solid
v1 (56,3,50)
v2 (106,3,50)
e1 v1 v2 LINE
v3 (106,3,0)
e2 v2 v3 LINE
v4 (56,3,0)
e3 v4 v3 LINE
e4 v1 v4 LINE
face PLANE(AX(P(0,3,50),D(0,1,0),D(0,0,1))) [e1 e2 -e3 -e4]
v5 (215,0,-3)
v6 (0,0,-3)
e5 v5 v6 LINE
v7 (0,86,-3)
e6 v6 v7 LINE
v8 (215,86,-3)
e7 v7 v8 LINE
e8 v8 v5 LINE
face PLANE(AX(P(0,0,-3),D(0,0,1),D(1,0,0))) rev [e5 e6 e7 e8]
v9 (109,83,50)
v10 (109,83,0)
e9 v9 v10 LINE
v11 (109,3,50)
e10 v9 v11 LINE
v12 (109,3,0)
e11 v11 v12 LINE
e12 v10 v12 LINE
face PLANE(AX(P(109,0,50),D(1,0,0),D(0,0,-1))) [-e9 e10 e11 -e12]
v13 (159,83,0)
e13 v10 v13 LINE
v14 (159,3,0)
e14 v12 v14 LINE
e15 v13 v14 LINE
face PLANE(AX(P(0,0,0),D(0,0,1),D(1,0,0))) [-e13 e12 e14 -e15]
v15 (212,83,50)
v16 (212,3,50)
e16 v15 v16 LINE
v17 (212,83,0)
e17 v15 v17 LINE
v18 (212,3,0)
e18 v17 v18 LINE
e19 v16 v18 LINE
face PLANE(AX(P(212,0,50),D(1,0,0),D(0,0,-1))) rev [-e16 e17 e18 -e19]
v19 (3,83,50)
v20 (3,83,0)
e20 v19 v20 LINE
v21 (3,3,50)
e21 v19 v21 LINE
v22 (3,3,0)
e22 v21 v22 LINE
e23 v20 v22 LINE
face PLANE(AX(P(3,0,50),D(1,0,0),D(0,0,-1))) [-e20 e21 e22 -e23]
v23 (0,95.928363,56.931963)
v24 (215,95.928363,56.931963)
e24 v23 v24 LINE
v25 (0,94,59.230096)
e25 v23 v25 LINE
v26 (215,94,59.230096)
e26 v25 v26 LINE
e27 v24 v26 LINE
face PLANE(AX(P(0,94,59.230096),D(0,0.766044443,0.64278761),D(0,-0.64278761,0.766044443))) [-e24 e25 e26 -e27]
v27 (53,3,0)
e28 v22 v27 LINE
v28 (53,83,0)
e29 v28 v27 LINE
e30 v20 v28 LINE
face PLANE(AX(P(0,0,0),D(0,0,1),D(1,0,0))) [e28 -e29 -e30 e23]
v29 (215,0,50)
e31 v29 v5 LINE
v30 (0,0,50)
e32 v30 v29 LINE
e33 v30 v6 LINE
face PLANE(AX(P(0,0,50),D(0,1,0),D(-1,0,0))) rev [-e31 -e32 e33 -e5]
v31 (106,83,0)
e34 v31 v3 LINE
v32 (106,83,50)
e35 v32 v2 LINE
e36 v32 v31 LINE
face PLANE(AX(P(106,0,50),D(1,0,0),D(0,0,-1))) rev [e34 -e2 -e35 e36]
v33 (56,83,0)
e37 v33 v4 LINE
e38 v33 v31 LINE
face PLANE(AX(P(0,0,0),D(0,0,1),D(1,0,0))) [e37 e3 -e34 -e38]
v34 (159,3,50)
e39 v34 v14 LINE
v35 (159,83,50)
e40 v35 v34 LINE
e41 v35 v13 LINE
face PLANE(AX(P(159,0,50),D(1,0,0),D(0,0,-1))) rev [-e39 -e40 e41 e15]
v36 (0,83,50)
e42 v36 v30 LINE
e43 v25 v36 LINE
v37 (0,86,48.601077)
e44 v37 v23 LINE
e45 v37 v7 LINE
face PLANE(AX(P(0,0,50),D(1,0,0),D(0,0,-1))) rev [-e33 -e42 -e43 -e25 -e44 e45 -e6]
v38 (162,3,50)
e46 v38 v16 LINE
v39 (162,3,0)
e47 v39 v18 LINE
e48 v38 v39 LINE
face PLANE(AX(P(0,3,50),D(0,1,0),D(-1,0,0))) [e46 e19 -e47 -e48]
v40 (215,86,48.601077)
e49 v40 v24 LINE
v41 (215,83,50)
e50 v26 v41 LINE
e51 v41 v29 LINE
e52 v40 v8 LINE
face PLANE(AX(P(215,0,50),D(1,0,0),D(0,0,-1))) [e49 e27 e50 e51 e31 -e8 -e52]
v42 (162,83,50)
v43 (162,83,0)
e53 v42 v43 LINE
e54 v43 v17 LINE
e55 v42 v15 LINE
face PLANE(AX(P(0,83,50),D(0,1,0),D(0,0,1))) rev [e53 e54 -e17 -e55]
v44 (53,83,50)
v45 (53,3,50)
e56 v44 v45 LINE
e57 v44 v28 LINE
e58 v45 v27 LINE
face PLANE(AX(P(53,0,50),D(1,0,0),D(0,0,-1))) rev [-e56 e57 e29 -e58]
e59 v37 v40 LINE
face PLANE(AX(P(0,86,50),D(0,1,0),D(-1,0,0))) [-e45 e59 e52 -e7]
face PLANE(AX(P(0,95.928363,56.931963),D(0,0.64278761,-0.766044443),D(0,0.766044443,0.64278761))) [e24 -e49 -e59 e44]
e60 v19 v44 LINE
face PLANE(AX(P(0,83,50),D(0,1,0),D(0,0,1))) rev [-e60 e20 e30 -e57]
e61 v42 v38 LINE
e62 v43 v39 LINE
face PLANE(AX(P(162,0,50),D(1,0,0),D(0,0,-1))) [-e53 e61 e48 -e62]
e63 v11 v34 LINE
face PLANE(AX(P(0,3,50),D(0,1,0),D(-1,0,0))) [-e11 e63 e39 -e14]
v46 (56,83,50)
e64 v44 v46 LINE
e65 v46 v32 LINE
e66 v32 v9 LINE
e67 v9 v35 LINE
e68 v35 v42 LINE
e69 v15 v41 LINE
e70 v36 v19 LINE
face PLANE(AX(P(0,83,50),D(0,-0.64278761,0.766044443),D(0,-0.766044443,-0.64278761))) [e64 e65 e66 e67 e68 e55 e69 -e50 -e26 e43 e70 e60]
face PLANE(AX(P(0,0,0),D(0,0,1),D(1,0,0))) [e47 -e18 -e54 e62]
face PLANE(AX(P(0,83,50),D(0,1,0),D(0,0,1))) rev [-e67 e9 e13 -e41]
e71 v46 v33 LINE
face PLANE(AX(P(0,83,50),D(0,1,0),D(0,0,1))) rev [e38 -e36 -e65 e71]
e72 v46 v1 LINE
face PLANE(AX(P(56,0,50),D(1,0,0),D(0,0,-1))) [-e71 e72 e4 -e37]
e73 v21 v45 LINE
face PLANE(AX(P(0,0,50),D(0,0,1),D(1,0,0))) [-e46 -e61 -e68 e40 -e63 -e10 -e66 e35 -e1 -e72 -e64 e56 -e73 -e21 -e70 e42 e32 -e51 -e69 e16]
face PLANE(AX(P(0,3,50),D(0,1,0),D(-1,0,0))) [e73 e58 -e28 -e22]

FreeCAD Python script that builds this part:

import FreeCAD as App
import Part
import Sketcher
from FreeCAD import Vector
Q = App.Units.Quantity

doc = App.newDocument("Part")
body = doc.addObject("PartDesign::Body", "Body")

# Sketch on XY plane
sketch1 = body.newObject("Sketcher::SketchObject", "Sketch")
sketch1.AttachmentSupport = (doc.getObject("XY_Plane"), [""])
sketch1.MapMode = "FlatFace"
sketch1.addGeometry(Part.LineSegment(Vector(0, 86, 0), Vector(0, 0, 0)), False)
sketch1.addGeometry(Part.LineSegment(Vector(0, 0, 0), Vector(215, 0, 0)), False)
sketch1.addGeometry(Part.LineSegment(Vector(215, 0, 0), Vector(215, 86, 0)), False)
sketch1.addGeometry(Part.LineSegment(Vector(215, 86, 0), Vector(0, 86, 0)), False)
sketch1.addGeometry(Part.LineSegment(Vector(56, 3, 0), Vector(56, 83, 0)), False)
sketch1.addGeometry(Part.LineSegment(Vector(56, 83, 0), Vector(106, 83, 0)), False)
sketch1.addGeometry(Part.LineSegment(Vector(106, 83, 0), Vector(106, 3, 0)), False)
sketch1.addGeometry(Part.LineSegment(Vector(106, 3, 0), Vector(56, 3, 0)), False)
sketch1.addGeometry(Part.LineSegment(Vector(53, 3, 0), Vector(3, 3, 0)), False)
sketch1.addGeometry(Part.LineSegment(Vector(3, 3, 0), Vector(3, 83, 0)), False)
sketch1.addGeometry(Part.LineSegment(Vector(3, 83, 0), Vector(53, 83, 0)), False)
sketch1.addGeometry(Part.LineSegment(Vector(53, 83, 0), Vector(53, 3, 0)), False)
sketch1.addGeometry(Part.LineSegment(Vector(162, 83, 0), Vector(212, 83, 0)), False)
sketch1.addGeometry(Part.LineSegment(Vector(212, 83, 0), Vector(212, 3, 0)), False)
sketch1.addGeometry(Part.LineSegment(Vector(212, 3, 0), Vector(162, 3, 0)), False)
sketch1.addGeometry(Part.LineSegment(Vector(162, 3, 0), Vector(162, 83, 0)), False)
sketch1.addGeometry(Part.LineSegment(Vector(159, 3, 0), Vector(109, 3, 0)), False)
sketch1.addGeometry(Part.LineSegment(Vector(109, 3, 0), Vector(109, 83, 0)), False)
sketch1.addGeometry(Part.LineSegment(Vector(109, 83, 0), Vector(159, 83, 0)), False)
sketch1.addGeometry(Part.LineSegment(Vector(159, 83, 0), Vector(159, 3, 0)), False)
sketch1.addConstraint(Sketcher.Constraint("Coincident", 0, 2, 1, 1))
sketch1.addConstraint(Sketcher.Constraint("Coincident", 1, 2, 2, 1))
sketch1.addConstraint(Sketcher.Constraint("Coincident", 2, 2, 3, 1))
sketch1.addConstraint(Sketcher.Constraint("Coincident", 3, 2, 0, 1))
sketch1.addConstraint(Sketcher.Constraint("Coincident", 4, 2, 5, 1))
sketch1.addConstraint(Sketcher.Constraint("Coincident", 5, 2, 6, 1))
sketch1.addConstraint(Sketcher.Constraint("Coincident", 6, 2, 7, 1))
sketch1.addConstraint(Sketcher.Constraint("Coincident", 7, 2, 4, 1))
sketch1.addConstraint(Sketcher.Constraint("Coincident", 8, 2, 9, 1))
sketch1.addConstraint(Sketcher.Constraint("Coincident", 9, 2, 10, 1))
sketch1.addConstraint(Sketcher.Constraint("Coincident", 10, 2, 11, 1))
sketch1.addConstraint(Sketcher.Constraint("Coincident", 11, 2, 8, 1))
sketch1.addConstraint(Sketcher.Constraint("Coincident", 12, 2, 13, 1))
sketch1.addConstraint(Sketcher.Constraint("Coincident", 13, 2, 14, 1))
sketch1.addConstraint(Sketcher.Constraint("Coincident", 14, 2, 15, 1))
sketch1.addConstraint(Sketcher.Constraint("Coincident", 15, 2, 12, 1))
sketch1.addConstraint(Sketcher.Constraint("Coincident", 16, 2, 17, 1))
sketch1.addConstraint(Sketcher.Constraint("Coincident", 17, 2, 18, 1))
sketch1.addConstraint(Sketcher.Constraint("Coincident", 18, 2, 19, 1))
sketch1.addConstraint(Sketcher.Constraint("Coincident", 19, 2, 16, 1))
sketch1.addConstraint(Sketcher.Constraint("Vertical", 0))
sketch1.addConstraint(Sketcher.Constraint("Horizontal", 1))
sketch1.addConstraint(Sketcher.Constraint("Vertical", 2))
sketch1.addConstraint(Sketcher.Constraint("Horizontal", 3))
sketch1.addConstraint(Sketcher.Constraint("Vertical", 4))
sketch1.addConstraint(Sketcher.Constraint("Horizontal", 5))
sketch1.addConstraint(Sketcher.Constraint("Vertical", 6))
sketch1.addConstraint(Sketcher.Constraint("Horizontal", 7))
sketch1.addConstraint(Sketcher.Constraint("Horizontal", 8))
sketch1.addConstraint(Sketcher.Constraint("Vertical", 9))
sketch1.addConstraint(Sketcher.Constraint("Horizontal", 10))
sketch1.addConstraint(Sketcher.Constraint("Vertical", 11))
sketch1.addConstraint(Sketcher.Constraint("Horizontal", 12))
sketch1.addConstraint(Sketcher.Constraint("Vertical", 13))
sketch1.addConstraint(Sketcher.Constraint("Horizontal", 14))
sketch1.addConstraint(Sketcher.Constraint("Vertical", 15))
sketch1.addConstraint(Sketcher.Constraint("Horizontal", 16))
sketch1.addConstraint(Sketcher.Constraint("Vertical", 17))
sketch1.addConstraint(Sketcher.Constraint("Horizontal", 18))
sketch1.addConstraint(Sketcher.Constraint("Vertical", 19))
sketch1.addConstraint(Sketcher.Constraint("Coincident", 0, 2, -1, 1))
sketch1.addConstraint(Sketcher.Constraint("Horizontal", 7, 2, 8, 2))
sketch1.addConstraint(Sketcher.Constraint("Horizontal", 5, 2, 9, 2))
sketch1.addConstraint(Sketcher.Constraint("Horizontal", 10, 2, 12, 2))
sketch1.addConstraint(Sketcher.Constraint("Horizontal", 11, 2, 13, 2))
sketch1.addConstraint(Sketcher.Constraint("Horizontal", 14, 2, 16, 2))
sketch1.addConstraint(Sketcher.Constraint("Horizontal", 15, 2, 17, 2))
sketch1.addConstraint(Sketcher.Constraint("Equal", 7, 8))
sketch1.addConstraint(Sketcher.Constraint("Equal", 10, 12))
sketch1.addConstraint(Sketcher.Constraint("Equal", 14, 16))
sketch1.addConstraint(Sketcher.Constraint("DistanceX", 1, 1, 1, 2, Q("215 mm")))
sketch1.addConstraint(Sketcher.Constraint("DistanceX", 5, 1, 5, 2, Q("50 mm")))
sketch1.addConstraint(Sketcher.Constraint("DistanceY", 0, 2, 0, 1, Q("86 mm")))
sketch1.addConstraint(Sketcher.Constraint("DistanceY", 4, 1, 4, 2, Q("80 mm")))
sketch1.addConstraint(Sketcher.Constraint("DistanceX", -1, 1, 4, 2, Q("56 mm")))
sketch1.addConstraint(Sketcher.Constraint("DistanceY", -1, 1, 4, 2, Q("83 mm")))
sketch1.addConstraint(Sketcher.Constraint("DistanceX", -1, 1, 8, 2, Q("3 mm")))
sketch1.addConstraint(Sketcher.Constraint("DistanceX", -1, 1, 12, 2, Q("212 mm")))
sketch1.addConstraint(Sketcher.Constraint("DistanceX", -1, 1, 16, 2, Q("109 mm")))
pad1 = body.newObject("PartDesign::Pad", "Pad")
pad1.Profile = sketch1
pad1.Length = 50

# Sketch on XY plane
sketch2 = body.newObject("Sketcher::SketchObject", "Sketch001")
sketch2.AttachmentSupport = (doc.getObject("XY_Plane"), [""])
sketch2.MapMode = "FlatFace"
sketch2.addGeometry(Part.LineSegment(Vector(215, 86, 0), Vector(215, 0, 0)), False)
sketch2.addGeometry(Part.LineSegment(Vector(215, 0, 0), Vector(0, 0, 0)), False)
sketch2.addGeometry(Part.LineSegment(Vector(0, 0, 0), Vector(0, 86, 0)), False)
sketch2.addGeometry(Part.LineSegment(Vector(0, 86, 0), Vector(215, 86, 0)), False)
sketch2.addConstraint(Sketcher.Constraint("Coincident", 0, 2, 1, 1))
sketch2.addConstraint(Sketcher.Constraint("Coincident", 1, 2, 2, 1))
sketch2.addConstraint(Sketcher.Constraint("Coincident", 2, 2, 3, 1))
sketch2.addConstraint(Sketcher.Constraint("Coincident", 3, 2, 0, 1))
sketch2.addConstraint(Sketcher.Constraint("Vertical", 0))
sketch2.addConstraint(Sketcher.Constraint("Horizontal", 1))
sketch2.addConstraint(Sketcher.Constraint("Vertical", 2))
sketch2.addConstraint(Sketcher.Constraint("Horizontal", 3))
sketch2.addConstraint(Sketcher.Constraint("Coincident", 1, 2, -1, 1))
sketch2.addConstraint(Sketcher.Constraint("DistanceX", 1, 2, 1, 1, Q("215 mm")))
sketch2.addConstraint(Sketcher.Constraint("DistanceY", 0, 2, 0, 1, Q("86 mm")))
pad2 = body.newObject("PartDesign::Pad", "Pad001")
pad2.Profile = sketch2
pad2.Length = 3
pad2.Reversed = True

# Sketch on YZ plane
sketch3 = body.newObject("Sketcher::SketchObject", "Sketch002")
sketch3.AttachmentSupport = (doc.getObject("YZ_Plane"), [""])
sketch3.MapMode = "FlatFace"
sketch3.AttachmentOffset = App.Placement(Vector(0, 0, 215), App.Rotation())
sketch3.addGeometry(Part.LineSegment(Vector(95.9, 56.9, 0), Vector(94, 59.2, 0)), False)
sketch3.addGeometry(Part.LineSegment(Vector(94, 59.2, 0), Vector(83, 50, 0)), False)
sketch3.addGeometry(Part.LineSegment(Vector(83, 50, 0), Vector(86, 50, 0)), False)
sketch3.addGeometry(Part.LineSegment(Vector(86, 50, 0), Vector(86, 48.6, 0)), False)
sketch3.addGeometry(Part.LineSegment(Vector(86, 48.6, 0), Vector(95.9, 56.9, 0)), False)
sketch3.addConstraint(Sketcher.Constraint("Coincident", 0, 2, 1, 1))
sketch3.addConstraint(Sketcher.Constraint("Coincident", 1, 2, 2, 1))
sketch3.addConstraint(Sketcher.Constraint("Coincident", 2, 2, 3, 1))
sketch3.addConstraint(Sketcher.Constraint("Coincident", 3, 2, 4, 1))
sketch3.addConstraint(Sketcher.Constraint("Coincident", 4, 2, 0, 1))
sketch3.addConstraint(Sketcher.Constraint("Horizontal", 2))
sketch3.addConstraint(Sketcher.Constraint("Vertical", 3))
sketch3.addConstraint(Sketcher.Constraint("Perpendicular", 0, 1))
sketch3.addConstraint(Sketcher.Constraint("Parallel", 1, 4))
sketch3.addConstraint(Sketcher.Constraint("DistanceX", 2, 1, 2, 2, Q("3 mm")))
sketch3.addConstraint(Sketcher.Constraint("Angle", 0, Q("130 deg")))
sketch3.addConstraint(Sketcher.Constraint("Distance", 0, Q("3 mm")))
sketch3.addConstraint(Sketcher.Constraint("DistanceX", -1, 1, 0, 2, Q("94 mm")))
sketch3.addConstraint(Sketcher.Constraint("DistanceX", -1, 1, 1, 2, Q("83 mm")))
sketch3.addConstraint(Sketcher.Constraint("DistanceY", -1, 1, 1, 2, Q("50 mm")))
pad3 = body.newObject("PartDesign::Pad", "Pad002")
pad3.Profile = sketch3
pad3.Length = 215
pad3.Reversed = True

doc.recompute()
